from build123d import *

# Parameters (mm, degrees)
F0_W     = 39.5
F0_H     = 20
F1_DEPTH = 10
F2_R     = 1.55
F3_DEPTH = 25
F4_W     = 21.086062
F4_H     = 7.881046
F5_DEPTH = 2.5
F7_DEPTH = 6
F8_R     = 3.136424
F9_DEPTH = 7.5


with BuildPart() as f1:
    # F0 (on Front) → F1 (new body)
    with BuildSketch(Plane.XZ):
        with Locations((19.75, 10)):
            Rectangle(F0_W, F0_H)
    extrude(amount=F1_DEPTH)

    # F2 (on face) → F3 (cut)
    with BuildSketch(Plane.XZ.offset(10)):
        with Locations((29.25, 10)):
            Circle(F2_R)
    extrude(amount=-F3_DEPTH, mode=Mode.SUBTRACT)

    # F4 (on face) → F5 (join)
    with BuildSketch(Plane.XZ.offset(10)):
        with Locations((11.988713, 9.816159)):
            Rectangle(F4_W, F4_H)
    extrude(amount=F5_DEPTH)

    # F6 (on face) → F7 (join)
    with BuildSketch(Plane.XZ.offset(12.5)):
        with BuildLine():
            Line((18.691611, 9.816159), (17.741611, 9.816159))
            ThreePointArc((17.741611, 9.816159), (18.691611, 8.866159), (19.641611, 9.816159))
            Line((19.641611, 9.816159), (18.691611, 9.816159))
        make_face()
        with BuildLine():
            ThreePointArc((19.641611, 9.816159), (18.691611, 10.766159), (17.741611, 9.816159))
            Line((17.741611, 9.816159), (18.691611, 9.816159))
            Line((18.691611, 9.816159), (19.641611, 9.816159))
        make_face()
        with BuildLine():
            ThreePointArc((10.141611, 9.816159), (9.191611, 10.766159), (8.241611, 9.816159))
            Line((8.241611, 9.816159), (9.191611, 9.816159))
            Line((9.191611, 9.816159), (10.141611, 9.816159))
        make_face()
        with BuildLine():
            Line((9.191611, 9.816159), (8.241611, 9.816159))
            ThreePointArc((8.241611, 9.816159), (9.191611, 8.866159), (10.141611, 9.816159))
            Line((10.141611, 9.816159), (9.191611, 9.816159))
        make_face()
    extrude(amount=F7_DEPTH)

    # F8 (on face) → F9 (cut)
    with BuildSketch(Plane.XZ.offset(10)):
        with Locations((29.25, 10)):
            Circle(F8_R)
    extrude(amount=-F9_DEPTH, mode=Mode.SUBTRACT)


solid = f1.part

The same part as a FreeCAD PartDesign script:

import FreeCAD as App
import Part
import Sketcher

V = App.Vector


def add_polygon(sketch, points):
    """Adds a closed chain of lines whose ends are joined by coincident constraints."""
    first, n = sketch.GeometryCount, len(points)
    for a, b in zip(points, points[1:] + points[:1]):
        sketch.addGeometry(Part.LineSegment(App.Vector(*a, 0), App.Vector(*b, 0)), False)
    for i in range(n):
        sketch.addConstraint(Sketcher.Constraint("Coincident", first + i, 2, first + (i + 1) % n, 1))

doc = App.newDocument("Part")
body = doc.addObject("PartDesign::Body", "Body")

sketch1 = doc.addObject("Sketcher::SketchObject", "Sketch")
body.addObject(sketch1)
sketch1.AttachmentSupport = (doc.XZ_Plane, [""])
sketch1.MapMode = "FlatFace"
add_polygon(sketch1, [(0, 20), (0, 0), (40, 0), (40, 20)])
sketch1.addConstraint([
    Sketcher.Constraint("Vertical", 0),
    Sketcher.Constraint("Horizontal", 1),
    Sketcher.Constraint("Vertical", 2),
    Sketcher.Constraint("Horizontal", 3),
    Sketcher.Constraint("Coincident", 0, 2, -1, 1),
    Sketcher.Constraint("DistanceY", 0, 2, 0, 1, 20.0),
    Sketcher.Constraint("DistanceX", 1, 1, 1, 2, 39.5),
])
pad1 = doc.addObject("PartDesign::Pad", "Pad")
body.addObject(pad1)
pad1.Profile = sketch1
pad1.Length = 10

sketch2 = doc.addObject("Sketcher::SketchObject", "Sketch001")
body.addObject(sketch2)
sketch2.AttachmentSupport = (doc.XZ_Plane, [""])
sketch2.MapMode = "FlatFace"
sketch2.AttachmentOffset = App.Placement(V(0, 0, 10), App.Rotation())
sketch2.addGeometry(Part.Circle(V(29.2, 10, 0), V(0, 0, 1), 1.6), False)
sketch2.addConstraint([
    Sketcher.Constraint("Diameter", 0, 3.1),
    Sketcher.Constraint("DistanceY", -1, 1, 0, 3, 10.0),
    Sketcher.Constraint("DistanceX", -1, 1, 0, 3, 29.25),
])
pocket1 = doc.addObject("PartDesign::Pocket", "Pocket")
body.addObject(pocket1)
pocket1.Profile = sketch2
pocket1.Length = 25

sketch3 = doc.addObject("Sketcher::SketchObject", "Sketch002")
body.addObject(sketch3)
sketch3.AttachmentSupport = (doc.XZ_Plane, [""])
sketch3.MapMode = "FlatFace"
sketch3.AttachmentOffset = App.Placement(V(0, 0, 10), App.Rotation())
add_polygon(sketch3, [(1, 14), (1, 6), (23, 6), (23, 14)])
sketch3.addConstraint([
    Sketcher.Constraint("Vertical", 0),
    Sketcher.Constraint("Horizontal", 1),
    Sketcher.Constraint("Vertical", 2),
    Sketcher.Constraint("Horizontal", 3),
    Sketcher.Constraint("DistanceX", 1, 1, 1, 2, 21.086062),
    Sketcher.Constraint("DistanceY", 0, 2, 0, 1, 7.881046),
    Sketcher.Constraint("DistanceX", -1, 1, 0, 2, 1.445682),
    Sketcher.Constraint("DistanceY", -1, 1, 0, 2, 5.875636),
])
pad2 = doc.addObject("PartDesign::Pad", "Pad001")
body.addObject(pad2)
pad2.Profile = sketch3
pad2.Length = 2.5

sketch4 = doc.addObject("Sketcher::SketchObject", "Sketch003")
body.addObject(sketch4)
sketch4.AttachmentSupport = (doc.XZ_Plane, [""])
sketch4.MapMode = "FlatFace"
sketch4.AttachmentOffset = App.Placement(V(0, 0, 12.5), App.Rotation())
sketch4.addGeometry([
    Part.Circle(V(18.7, 9.8, 0), V(0, 0, 1), 0.9),
    Part.Circle(V(9.2, 9.8, 0), V(0, 0, 1), 0.9),
], False)
sketch4.addConstraint([
    Sketcher.Constraint("Equal", 0, 1),
    Sketcher.Constraint("Horizontal", 0, 3, 1, 3),
    Sketcher.Constraint("Diameter", 0, 1.9),
    Sketcher.Constraint("DistanceX", 1, 3, 0, 3, 9.5),
    Sketcher.Constraint("DistanceX", -1, 1, 0, 3, 18.691611),
    Sketcher.Constraint("DistanceY", -1, 1, 0, 3, 9.816159),
])
pad3 = doc.addObject("PartDesign::Pad", "Pad002")
body.addObject(pad3)
pad3.Profile = sketch4
pad3.Length = 6

sketch5 = doc.addObject("Sketcher::SketchObject", "Sketch004")
body.addObject(sketch5)
sketch5.AttachmentSupport = (doc.XZ_Plane, [""])
sketch5.MapMode = "FlatFace"
sketch5.AttachmentOffset = App.Placement(V(0, 0, 10), App.Rotation())
sketch5.addGeometry(Part.Circle(V(29.2, 10, 0), V(0, 0, 1), 3.1), False)
sketch5.addConstraint([
    Sketcher.Constraint("DistanceY", -1, 1, 0, 3, 10.0),
    Sketcher.Constraint("DistanceX", -1, 1, 0, 3, 29.25),
    Sketcher.Constraint("Diameter", 0, 6.272848),
])
pocket2 = doc.addObject("PartDesign::Pocket", "Pocket001")
body.addObject(pocket2)
pocket2.Profile = sketch5
pocket2.Length = 7.5

doc.recompute()
